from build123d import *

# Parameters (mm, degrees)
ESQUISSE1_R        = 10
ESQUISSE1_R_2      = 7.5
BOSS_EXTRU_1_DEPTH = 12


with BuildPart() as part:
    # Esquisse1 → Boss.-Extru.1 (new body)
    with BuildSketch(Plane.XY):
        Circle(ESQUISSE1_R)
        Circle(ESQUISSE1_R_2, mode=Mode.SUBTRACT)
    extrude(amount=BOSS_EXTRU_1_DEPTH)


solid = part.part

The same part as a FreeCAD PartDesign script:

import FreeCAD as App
import Part
import Sketcher

V = App.Vector

doc = App.newDocument("Part")
body = doc.addObject("PartDesign::Body", "Body")

# Sketch on XY plane
sketch1 = body.newObject("Sketcher::SketchObject", "Sketch")
sketch1.AttachmentSupport = (doc.getObject("XY_Plane"), [""])
sketch1.MapMode = "FlatFace"
sketch1.addGeometry(Part.Circle(V(0, 0, 0), V(0, 0, 1), 10), False)
sketch1.addGeometry(Part.Circle(V(0, 0, 0), V(0, 0, 1), 8), False)
sketch1.addConstraint(Sketcher.Constraint("Coincident", 0, 3, -1, 1))
sketch1.addConstraint(Sketcher.Constraint("Coincident", 1, 3, -1, 1))
sketch1.addConstraint(Sketcher.Constraint("Diameter", 0, 20.0))
sketch1.addConstraint(Sketcher.Constraint("Diameter", 1, 15.0))
pad1 = body.newObject("PartDesign::Pad", "Pad")
pad1.Profile = sketch1
pad1.Length = 12

doc.recompute()
